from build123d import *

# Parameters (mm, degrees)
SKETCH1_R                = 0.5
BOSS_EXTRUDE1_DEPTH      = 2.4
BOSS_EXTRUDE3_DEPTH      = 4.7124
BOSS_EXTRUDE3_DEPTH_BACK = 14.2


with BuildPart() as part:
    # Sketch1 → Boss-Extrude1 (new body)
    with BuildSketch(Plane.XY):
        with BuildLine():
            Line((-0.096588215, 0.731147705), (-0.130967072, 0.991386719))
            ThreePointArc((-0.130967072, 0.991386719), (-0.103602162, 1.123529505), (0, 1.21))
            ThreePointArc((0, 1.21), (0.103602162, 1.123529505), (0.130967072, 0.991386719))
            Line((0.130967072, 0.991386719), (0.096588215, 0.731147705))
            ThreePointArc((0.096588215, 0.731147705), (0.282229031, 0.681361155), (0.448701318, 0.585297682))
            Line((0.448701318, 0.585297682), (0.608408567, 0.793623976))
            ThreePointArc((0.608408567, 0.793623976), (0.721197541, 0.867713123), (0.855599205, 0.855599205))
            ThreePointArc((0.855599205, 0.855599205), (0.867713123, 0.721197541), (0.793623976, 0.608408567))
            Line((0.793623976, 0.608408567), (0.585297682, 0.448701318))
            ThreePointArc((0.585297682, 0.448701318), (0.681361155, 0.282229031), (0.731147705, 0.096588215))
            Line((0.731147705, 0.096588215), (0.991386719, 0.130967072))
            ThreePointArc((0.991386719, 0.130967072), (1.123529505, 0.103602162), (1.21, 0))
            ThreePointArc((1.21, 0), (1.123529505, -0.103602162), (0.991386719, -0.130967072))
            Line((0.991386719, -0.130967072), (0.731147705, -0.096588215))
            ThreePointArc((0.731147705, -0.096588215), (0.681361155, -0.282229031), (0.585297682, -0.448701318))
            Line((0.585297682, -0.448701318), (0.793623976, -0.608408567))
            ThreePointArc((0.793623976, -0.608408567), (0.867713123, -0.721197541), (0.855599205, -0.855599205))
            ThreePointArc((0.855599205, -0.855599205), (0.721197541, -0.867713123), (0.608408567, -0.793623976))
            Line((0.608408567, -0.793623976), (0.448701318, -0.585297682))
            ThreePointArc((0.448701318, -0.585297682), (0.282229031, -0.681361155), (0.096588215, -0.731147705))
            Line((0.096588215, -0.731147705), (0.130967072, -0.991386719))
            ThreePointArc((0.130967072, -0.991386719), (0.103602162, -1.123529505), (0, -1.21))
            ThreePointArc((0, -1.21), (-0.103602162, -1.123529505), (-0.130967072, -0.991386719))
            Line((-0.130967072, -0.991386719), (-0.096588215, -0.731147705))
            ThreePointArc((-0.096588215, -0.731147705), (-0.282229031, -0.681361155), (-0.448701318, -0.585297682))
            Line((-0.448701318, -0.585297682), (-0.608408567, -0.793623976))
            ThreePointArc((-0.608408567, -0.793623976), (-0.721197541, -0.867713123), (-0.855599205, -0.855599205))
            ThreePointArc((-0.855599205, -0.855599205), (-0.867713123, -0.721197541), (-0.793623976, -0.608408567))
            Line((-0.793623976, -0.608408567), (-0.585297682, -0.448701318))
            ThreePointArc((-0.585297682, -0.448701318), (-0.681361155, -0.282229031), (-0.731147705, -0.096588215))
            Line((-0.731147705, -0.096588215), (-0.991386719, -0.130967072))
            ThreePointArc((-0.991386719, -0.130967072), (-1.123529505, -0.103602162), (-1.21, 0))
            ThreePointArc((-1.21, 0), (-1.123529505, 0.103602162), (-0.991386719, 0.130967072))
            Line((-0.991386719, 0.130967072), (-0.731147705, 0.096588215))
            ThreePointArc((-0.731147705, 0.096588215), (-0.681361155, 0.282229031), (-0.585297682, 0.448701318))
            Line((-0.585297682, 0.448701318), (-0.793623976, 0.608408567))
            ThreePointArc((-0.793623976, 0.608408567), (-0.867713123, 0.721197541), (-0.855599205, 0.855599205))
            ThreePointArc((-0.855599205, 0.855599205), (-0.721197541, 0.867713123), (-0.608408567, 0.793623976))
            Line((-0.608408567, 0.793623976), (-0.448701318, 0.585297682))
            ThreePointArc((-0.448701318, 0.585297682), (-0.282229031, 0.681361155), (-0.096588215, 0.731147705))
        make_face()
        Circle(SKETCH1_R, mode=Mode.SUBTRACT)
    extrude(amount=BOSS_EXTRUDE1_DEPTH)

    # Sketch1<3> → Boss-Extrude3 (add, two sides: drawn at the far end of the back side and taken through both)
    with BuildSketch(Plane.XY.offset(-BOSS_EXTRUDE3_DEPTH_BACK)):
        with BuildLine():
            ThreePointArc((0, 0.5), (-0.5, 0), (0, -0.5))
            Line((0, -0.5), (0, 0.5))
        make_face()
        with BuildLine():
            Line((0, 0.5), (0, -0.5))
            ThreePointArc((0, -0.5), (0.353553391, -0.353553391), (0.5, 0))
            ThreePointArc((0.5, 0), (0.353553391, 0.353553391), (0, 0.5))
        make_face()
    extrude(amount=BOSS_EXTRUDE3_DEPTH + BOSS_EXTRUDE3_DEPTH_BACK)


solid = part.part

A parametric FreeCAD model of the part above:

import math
import FreeCAD as App
import Part
import Sketcher
from FreeCAD import Vector

doc = App.newDocument("Part")
body = doc.addObject("PartDesign::Body", "Body")

# Sketch on XY plane
sketch1 = body.newObject("Sketcher::SketchObject", "Sketch")
sketch1.AttachmentSupport = (doc.getObject("XY_Plane"), [""])
sketch1.MapMode = "FlatFace"
sketch1.addGeometry([
    Part.LineSegment(Vector(-0.130967, 0.991387, 0), Vector(-0.096588, 0.731148, 0)),  # 0
    Part.ArcOfCircle(Part.Circle(Vector(0, 0, 0), Vector(0, 0, 1), 0.7375), math.radians(97.525479), math.radians(127.474521)),  # 1
    Part.LineSegment(Vector(-0.448701, 0.585298, 0), Vector(-0.608409, 0.793624, 0)),  # 2
    Part.ArcOfCircle(Part.Circle(Vector(-0.77103, 0.668955, 0), Vector(0, 0, 1), 0.20491), math.radians(37.474521), math.radians(114.375531)),  # 3
    Part.ArcOfCircle(Part.Circle(Vector(-0.668955, 0.77103, 0), Vector(0, 0, 1), 0.20491), math.radians(155.624469), math.radians(232.525479)),  # 4
    Part.LineSegment(Vector(-0.793624, 0.608409, 0), Vector(-0.585298, 0.448701, 0)),  # 5
    Part.ArcOfCircle(Part.Circle(Vector(0, 0, 0), Vector(0, 0, 1), 0.7375), math.radians(142.525479), math.radians(172.474521)),  # 6
    Part.LineSegment(Vector(-0.731148, 0.096588, 0), Vector(-0.991387, 0.130967, 0)),  # 7
    Part.ArcOfCircle(Part.Circle(Vector(-1.018223, -0.072178, 0), Vector(0, 0, 1), 0.20491), math.radians(82.474521), math.radians(159.375531)),  # 8
    Part.ArcOfCircle(Part.Circle(Vector(-1.018223, 0.072178, 0), Vector(0, 0, 1), 0.20491), math.radians(-159.375531), math.radians(-82.474521)),  # 9
    Part.LineSegment(Vector(-0.991387, -0.130967, 0), Vector(-0.731148, -0.096588, 0)),  # 10
    Part.ArcOfCircle(Part.Circle(Vector(0, 0, 0), Vector(0, 0, 1), 0.7375), math.radians(-172.474521), math.radians(-142.525479)),  # 11
    Part.LineSegment(Vector(-0.585298, -0.448701, 0), Vector(-0.793624, -0.608409, 0)),  # 12
    Part.ArcOfCircle(Part.Circle(Vector(-0.668955, -0.77103, 0), Vector(0, 0, 1), 0.20491), math.radians(127.474521), math.radians(204.375531)),  # 13
    Part.ArcOfCircle(Part.Circle(Vector(-0.77103, -0.668955, 0), Vector(0, 0, 1), 0.20491), math.radians(-114.375531), math.radians(-37.474521)),  # 14
    Part.LineSegment(Vector(-0.608409, -0.793624, 0), Vector(-0.448701, -0.585298, 0)),  # 15
    Part.ArcOfCircle(Part.Circle(Vector(0, 0, 0), Vector(0, 0, 1), 0.7375), math.radians(-127.474521), math.radians(-97.525479)),  # 16
    Part.LineSegment(Vector(-0.096588, -0.731148, 0), Vector(-0.130967, -0.991387, 0)),  # 17
    Part.ArcOfCircle(Part.Circle(Vector(0.072178, -1.018223, 0), Vector(0, 0, 1), 0.20491), math.radians(172.474521), math.radians(249.375531)),  # 18
    Part.ArcOfCircle(Part.Circle(Vector(-0.072178, -1.018223, 0), Vector(0, 0, 1), 0.20491), math.radians(-69.375531), math.radians(7.525479)),  # 19
    Part.LineSegment(Vector(0.130967, -0.991387, 0), Vector(0.096588, -0.731148, 0)),  # 20
    Part.ArcOfCircle(Part.Circle(Vector(0, 0, 0), Vector(0, 0, 1), 0.7375), math.radians(-82.474521), math.radians(-52.525479)),  # 21
    Part.LineSegment(Vector(0.448701, -0.585298, 0), Vector(0.608409, -0.793624, 0)),  # 22
    Part.ArcOfCircle(Part.Circle(Vector(0.77103, -0.668955, 0), Vector(0, 0, 1), 0.20491), math.radians(-142.525479), math.radians(-65.624469)),  # 23
    Part.ArcOfCircle(Part.Circle(Vector(0.668955, -0.77103, 0), Vector(0, 0, 1), 0.20491), math.radians(-24.375531), math.radians(52.525479)),  # 24
    Part.LineSegment(Vector(0.793624, -0.608409, 0), Vector(0.585298, -0.448701, 0)),  # 25
    Part.ArcOfCircle(Part.Circle(Vector(0, 0, 0), Vector(0, 0, 1), 0.7375), math.radians(-37.474521), math.radians(-7.525479)),  # 26
    Part.LineSegment(Vector(0.731148, -0.096588, 0), Vector(0.991387, -0.130967, 0)),  # 27
    Part.ArcOfCircle(Part.Circle(Vector(1.018223, 0.072178, 0), Vector(0, 0, 1), 0.20491), math.radians(-97.525479), math.radians(-20.624469)),  # 28
    Part.ArcOfCircle(Part.Circle(Vector(1.018223, -0.072178, 0), Vector(0, 0, 1), 0.20491), math.radians(20.624469), math.radians(97.525479)),  # 29
    Part.LineSegment(Vector(0.991387, 0.130967, 0), Vector(0.731148, 0.096588, 0)),  # 30
    Part.ArcOfCircle(Part.Circle(Vector(0, 0, 0), Vector(0, 0, 1), 0.7375), math.radians(7.525479), math.radians(37.474521)),  # 31
    Part.LineSegment(Vector(0.585298, 0.448701, 0), Vector(0.793624, 0.608409, 0)),  # 32
    Part.ArcOfCircle(Part.Circle(Vector(0.668955, 0.77103, 0), Vector(0, 0, 1), 0.20491), math.radians(-52.525479), math.radians(24.375531)),  # 33
    Part.ArcOfCircle(Part.Circle(Vector(0.77103, 0.668955, 0), Vector(0, 0, 1), 0.20491), math.radians(65.624469), math.radians(142.525479)),  # 34
    Part.LineSegment(Vector(0.608409, 0.793624, 0), Vector(0.448701, 0.585298, 0)),  # 35
    Part.ArcOfCircle(Part.Circle(Vector(0, 0, 0), Vector(0, 0, 1), 0.7375), math.radians(52.525479), math.radians(82.474521)),  # 36
    Part.LineSegment(Vector(0.096588, 0.731148, 0), Vector(0.130967, 0.991387, 0)),  # 37
    Part.ArcOfCircle(Part.Circle(Vector(-0.072178, 1.018223, 0), Vector(0, 0, 1), 0.20491), math.radians(-7.525479), math.radians(69.375531)),  # 38
    Part.ArcOfCircle(Part.Circle(Vector(0.072178, 1.018223, 0), Vector(0, 0, 1), 0.20491), math.radians(110.624469), math.radians(187.525479)),  # 39
    Part.Circle(Vector(0, 0, 0), Vector(0, 0, 1), 0.5),  # 40
], False)
sketch1.addConstraint([
    Sketcher.Constraint("Coincident", 0, 2, 1, 1),
    Sketcher.Constraint("Coincident", 1, 2, 2, 1),
    Sketcher.Constraint("Tangent", 2, 2, 3, 1),
    Sketcher.Constraint("Coincident", 3, 2, 4, 1),
    Sketcher.Constraint("Tangent", 4, 2, 5, 1),
    Sketcher.Constraint("Coincident", 5, 2, 6, 1),
    Sketcher.Constraint("Coincident", 6, 2, 7, 1),
    Sketcher.Constraint("Tangent", 7, 2, 8, 1),
    Sketcher.Constraint("Coincident", 8, 2, 9, 1),
    Sketcher.Constraint("Tangent", 9, 2, 10, 1),
    Sketcher.Constraint("Coincident", 10, 2, 11, 1),
    Sketcher.Constraint("Coincident", 11, 2, 12, 1),
    Sketcher.Constraint("Tangent", 12, 2, 13, 1),
    Sketcher.Constraint("Coincident", 13, 2, 14, 1),
    Sketcher.Constraint("Tangent", 14, 2, 15, 1),
    Sketcher.Constraint("Coincident", 15, 2, 16, 1),
    Sketcher.Constraint("Coincident", 16, 2, 17, 1),
    Sketcher.Constraint("Tangent", 17, 2, 18, 1),
    Sketcher.Constraint("Coincident", 18, 2, 19, 1),
    Sketcher.Constraint("Tangent", 19, 2, 20, 1),
    Sketcher.Constraint("Coincident", 20, 2, 21, 1),
    Sketcher.Constraint("Coincident", 21, 2, 22, 1),
    Sketcher.Constraint("Tangent", 22, 2, 23, 1),
    Sketcher.Constraint("Coincident", 23, 2, 24, 1),
    Sketcher.Constraint("Tangent", 24, 2, 25, 1),
    Sketcher.Constraint("Coincident", 25, 2, 26, 1),
    Sketcher.Constraint("Coincident", 26, 2, 27, 1),
    Sketcher.Constraint("Tangent", 27, 2, 28, 1),
    Sketcher.Constraint("Coincident", 28, 2, 29, 1),
    Sketcher.Constraint("Tangent", 29, 2, 30, 1),
    Sketcher.Constraint("Coincident", 30, 2, 31, 1),
    Sketcher.Constraint("Coincident", 31, 2, 32, 1),
    Sketcher.Constraint("Tangent", 32, 2, 33, 1),
    Sketcher.Constraint("Coincident", 33, 2, 34, 1),
    Sketcher.Constraint("Tangent", 34, 2, 35, 1),
    Sketcher.Constraint("Coincident", 35, 2, 36, 1),
    Sketcher.Constraint("Coincident", 36, 2, 37, 1),
    Sketcher.Constraint("Tangent", 37, 2, 38, 1),
    Sketcher.Constraint("Coincident", 38, 2, 39, 1),
    Sketcher.Constraint("Tangent", 39, 2, 0, 1),
    Sketcher.Constraint("Coincident", 1, 3, -1, 1),
    Sketcher.Constraint("Coincident", 6, 3, -1, 1),
    Sketcher.Constraint("Coincident", 11, 3, -1, 1),
    Sketcher.Constraint("Coincident", 16, 3, -1, 1),
    Sketcher.Constraint("Coincident", 21, 3, -1, 1),
    Sketcher.Constraint("Coincident", 26, 3, -1, 1),
    Sketcher.Constraint("Coincident", 31, 3, -1, 1),
    Sketcher.Constraint("Coincident", 36, 3, -1, 1),
    Sketcher.Constraint("Coincident", 40, 3, -1, 1),
    Sketcher.Constraint("Equal", 3, 4),
    Sketcher.Constraint("Equal", 1, 6),
    Sketcher.Constraint("Equal", 4, 8),
    Sketcher.Constraint("Equal", 8, 9),
    Sketcher.Constraint("Equal", 6, 11),
    Sketcher.Constraint("Equal", 9, 13),
    Sketcher.Constraint("Equal", 13, 14),
    Sketcher.Constraint("Equal", 11, 16),
    Sketcher.Constraint("Equal", 14, 18),
    Sketcher.Constraint("Equal", 18, 19),
    Sketcher.Constraint("Equal", 16, 21),
    Sketcher.Constraint("Equal", 19, 23),
    Sketcher.Constraint("Equal", 23, 24),
    Sketcher.Constraint("Equal", 21, 26),
    Sketcher.Constraint("Equal", 24, 28),
    Sketcher.Constraint("Equal", 28, 29),
    Sketcher.Constraint("Equal", 26, 31),
    Sketcher.Constraint("Equal", 29, 33),
    Sketcher.Constraint("Equal", 33, 34),
    Sketcher.Constraint("Equal", 31, 36),
    Sketcher.Constraint("Equal", 34, 38),
    Sketcher.Constraint("Equal", 38, 39),
    Sketcher.Constraint("Symmetric", 3, 3, 23, 3, -1, 1),
    Sketcher.Constraint("Symmetric", 4, 3, 24, 3, -1, 1),
    Sketcher.Constraint("Symmetric", 8, 3, 28, 3, -1, 1),
    Sketcher.Constraint("Symmetric", 9, 3, 29, 3, -1, 1),
    Sketcher.Constraint("Symmetric", 13, 3, 33, 3, -1, 1),
    Sketcher.Constraint("Symmetric", 14, 3, 34, 3, -1, 1),
    Sketcher.Constraint("Symmetric", 18, 3, 38, 3, -1, 1),
    Sketcher.Constraint("Symmetric", 19, 3, 39, 3, -1, 1),
    Sketcher.Constraint("Symmetric", 18, 3, 19, 3, -2),
    Sketcher.Constraint("Symmetric", 14, 3, 23, 3, -2),
    Sketcher.Constraint("Symmetric", 13, 3, 24, 3, -2),
    Sketcher.Constraint("Symmetric", 9, 3, 28, 3, -2),
    Sketcher.Constraint("Perpendicular", 0, 10),
    Sketcher.Constraint("Perpendicular", 2, 12),
    Sketcher.Constraint("Perpendicular", 5, 15),
    Sketcher.Constraint("Perpendicular", 7, 17),
    Sketcher.Constraint("Perpendicular", 10, 20),
    Sketcher.Constraint("Perpendicular", 12, 22),
    Sketcher.Constraint("Perpendicular", 15, 25),
    Sketcher.Constraint("Perpendicular", 17, 27),
    Sketcher.Constraint("Perpendicular", 20, 30),
    Sketcher.Constraint("Perpendicular", 22, 32),
    Sketcher.Constraint("Perpendicular", 25, 35),
    Sketcher.Constraint("Perpendicular", 27, 37),
    Sketcher.Constraint("Horizontal", 17, 2, 19, 2),
    Sketcher.Constraint("Horizontal", 15, 2, 21, 2),
    Sketcher.Constraint("Equal", 0, 2),
    Sketcher.Constraint("Equal", 2, 5),
    Sketcher.Constraint("Equal", 5, 7),
    Sketcher.Constraint("Diameter", 40, 1.0),
    Sketcher.Constraint("Radius", 1, 0.7375),
    Sketcher.Constraint("DistanceX", 8, 2, -1, 1, 1.21),
    Sketcher.Constraint("DistanceY", 18, 2, -1, 1, 1.21),
    Sketcher.Constraint("Radius", 3, 0.20491),
    Sketcher.Constraint("Distance", 0, 0.2625),
    Sketcher.Constraint("DistanceX", 1, 2, -1, 1, 0.448701),
    Sketcher.Constraint("DistanceX", 3, 2, -1, 1, 0.855599),
    Sketcher.Constraint("DistanceY", -1, 1, 3, 2, 0.855599),
    Sketcher.Constraint("DistanceX", 0, 2, -1, 1, 0.096588),
])
pad1 = body.newObject("PartDesign::Pad", "Pad")
pad1.Profile = sketch1
pad1.Length = 2.4

# Sketch on XY plane
sketch2 = body.newObject("Sketcher::SketchObject", "Sketch001")
sketch2.AttachmentSupport = (doc.getObject("XY_Plane"), [""])
sketch2.MapMode = "FlatFace"
sketch2.addGeometry([
    Part.ArcOfCircle(Part.Circle(Vector(0, 0, 0), Vector(0, 0, 1), 0.5), math.radians(90), math.radians(270)),
    Part.ArcOfCircle(Part.Circle(Vector(0, 0, 0), Vector(0, 0, 1), 0.5), math.radians(-90), math.radians(0)),
    Part.ArcOfCircle(Part.Circle(Vector(0, 0, 0), Vector(0, 0, 1), 0.5), math.radians(0), math.radians(90)),
], False)
sketch2.addConstraint([
    Sketcher.Constraint("Tangent", 0, 2, 1, 1),
    Sketcher.Constraint("Tangent", 1, 2, 2, 1),
    Sketcher.Constraint("Tangent", 2, 2, 0, 1),
    Sketcher.Constraint("Coincident", 0, 3, -1, 1),
    Sketcher.Constraint("PointOnObject", 0, 2, -2),
    Sketcher.Constraint("PointOnObject", 1, 2, -1),
    Sketcher.Constraint("PointOnObject", 2, 2, -2),
    Sketcher.Constraint("Radius", 0, 0.5),
])
pad2 = body.newObject("PartDesign::Pad", "Pad001")
pad2.Profile = sketch2
pad2.Type = "TwoLengths"
pad2.Length = 4.7124
pad2.Length2 = 14.2

doc.recompute()
